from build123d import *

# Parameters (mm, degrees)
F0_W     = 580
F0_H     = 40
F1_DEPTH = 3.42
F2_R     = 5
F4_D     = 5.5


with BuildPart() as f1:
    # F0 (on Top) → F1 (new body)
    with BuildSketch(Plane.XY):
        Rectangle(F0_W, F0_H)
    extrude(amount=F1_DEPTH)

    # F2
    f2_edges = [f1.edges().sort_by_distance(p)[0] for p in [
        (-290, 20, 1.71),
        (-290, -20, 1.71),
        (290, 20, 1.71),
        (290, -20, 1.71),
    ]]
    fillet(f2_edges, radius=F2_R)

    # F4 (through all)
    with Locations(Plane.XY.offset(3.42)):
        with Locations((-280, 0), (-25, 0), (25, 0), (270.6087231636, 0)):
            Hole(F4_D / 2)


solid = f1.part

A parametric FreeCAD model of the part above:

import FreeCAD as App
import Part
import Sketcher
from FreeCAD import Vector


def edges_at(feature, points):
    """Names of the edges that pass closest to the given points."""
    edges = feature.Shape.Edges
    near = lambda p: min(range(len(edges)), key=lambda i: edges[i].distToShape(Part.Vertex(*p))[0])
    return sorted({f"Edge{near(p) + 1}" for p in points})


def add_polygon(sketch, points):
    """Adds a closed chain of lines whose ends are joined by coincident constraints."""
    first, n = sketch.GeometryCount, len(points)
    for a, b in zip(points, points[1:] + points[:1]):
        sketch.addGeometry(Part.LineSegment(App.Vector(*a, 0), App.Vector(*b, 0)), False)
    for i in range(n):
        sketch.addConstraint(Sketcher.Constraint("Coincident", first + i, 2, first + (i + 1) % n, 1))

doc = App.newDocument("Part")
body = doc.addObject("PartDesign::Body", "Body")

sketch1 = body.newObject("Sketcher::SketchObject", "Sketch")
sketch1.AttachmentSupport = (doc.getObject("XY_Plane"), [""])
sketch1.MapMode = "FlatFace"
add_polygon(sketch1, [(-290, 20), (-290, -20), (290, -20), (290, 20)])
sketch1.addConstraint(Sketcher.Constraint("Vertical", 0))
sketch1.addConstraint(Sketcher.Constraint("Horizontal", 1))
sketch1.addConstraint(Sketcher.Constraint("Vertical", 2))
sketch1.addConstraint(Sketcher.Constraint("Horizontal", 3))
sketch1.addConstraint(Sketcher.Constraint("Symmetric", 0, 2, 2, 2, -1, 1))
sketch1.addConstraint(Sketcher.Constraint("DistanceX", 1, 1, 1, 2, 580.0))
sketch1.addConstraint(Sketcher.Constraint("DistanceY", 0, 2, 0, 1, 40.0))
pad1 = body.newObject("PartDesign::Pad", "Pad")
pad1.Profile = sketch1
pad1.Length = 3.42
doc.recompute()

fillet = body.newObject("PartDesign::Fillet", "Fillet")
fillet.Base = (pad1, edges_at(pad1, [
    (-290, 20, 1.71),
    (-290, -20, 1.71),
    (290, 20, 1.71),
    (290, -20, 1.71),
]))
fillet.Radius = 5

sketch2 = body.newObject("Sketcher::SketchObject", "Sketch001")
sketch2.AttachmentSupport = (doc.getObject("XY_Plane"), [""])
sketch2.MapMode = "FlatFace"
sketch2.AttachmentOffset = App.Placement(Vector(0, 0, 3.42), App.Rotation())
sketch2.addGeometry(Part.Circle(Vector(-280, 0, 0), Vector(0, 0, 1), 2.75), False)
sketch2.addGeometry(Part.Circle(Vector(-25, 0, 0), Vector(0, 0, 1), 2.75), False)
sketch2.addGeometry(Part.Circle(Vector(25, 0, 0), Vector(0, 0, 1), 2.75), False)
sketch2.addGeometry(Part.Circle(Vector(270.608723, 0, 0), Vector(0, 0, 1), 2.75), False)
sketch2.addConstraint(Sketcher.Constraint("Equal", 0, 1))
sketch2.addConstraint(Sketcher.Constraint("Equal", 1, 2))
sketch2.addConstraint(Sketcher.Constraint("Equal", 2, 3))
sketch2.addConstraint(Sketcher.Constraint("Symmetric", 1, 3, 2, 3, -1, 1))
sketch2.addConstraint(Sketcher.Constraint("PointOnObject", 0, 3, -1))
sketch2.addConstraint(Sketcher.Constraint("PointOnObject", 1, 3, -1))
sketch2.addConstraint(Sketcher.Constraint("PointOnObject", 3, 3, -1))
sketch2.addConstraint(Sketcher.Constraint("Diameter", 0, 5.5))
sketch2.addConstraint(Sketcher.Constraint("DistanceX", 0, 3, -1, 1, 280.0))
sketch2.addConstraint(Sketcher.Constraint("DistanceX", 1, 3, -1, 1, 25.0))
sketch2.addConstraint(Sketcher.Constraint("DistanceX", -1, 1, 3, 3, 270.608723))
doc.recompute()
hole = body.newObject("PartDesign::Hole", "Hole")
hole.Profile = sketch2
hole.ThreadType = "None"
hole.Diameter = 5.5
hole.DepthType = "ThroughAll"

doc.recompute()
